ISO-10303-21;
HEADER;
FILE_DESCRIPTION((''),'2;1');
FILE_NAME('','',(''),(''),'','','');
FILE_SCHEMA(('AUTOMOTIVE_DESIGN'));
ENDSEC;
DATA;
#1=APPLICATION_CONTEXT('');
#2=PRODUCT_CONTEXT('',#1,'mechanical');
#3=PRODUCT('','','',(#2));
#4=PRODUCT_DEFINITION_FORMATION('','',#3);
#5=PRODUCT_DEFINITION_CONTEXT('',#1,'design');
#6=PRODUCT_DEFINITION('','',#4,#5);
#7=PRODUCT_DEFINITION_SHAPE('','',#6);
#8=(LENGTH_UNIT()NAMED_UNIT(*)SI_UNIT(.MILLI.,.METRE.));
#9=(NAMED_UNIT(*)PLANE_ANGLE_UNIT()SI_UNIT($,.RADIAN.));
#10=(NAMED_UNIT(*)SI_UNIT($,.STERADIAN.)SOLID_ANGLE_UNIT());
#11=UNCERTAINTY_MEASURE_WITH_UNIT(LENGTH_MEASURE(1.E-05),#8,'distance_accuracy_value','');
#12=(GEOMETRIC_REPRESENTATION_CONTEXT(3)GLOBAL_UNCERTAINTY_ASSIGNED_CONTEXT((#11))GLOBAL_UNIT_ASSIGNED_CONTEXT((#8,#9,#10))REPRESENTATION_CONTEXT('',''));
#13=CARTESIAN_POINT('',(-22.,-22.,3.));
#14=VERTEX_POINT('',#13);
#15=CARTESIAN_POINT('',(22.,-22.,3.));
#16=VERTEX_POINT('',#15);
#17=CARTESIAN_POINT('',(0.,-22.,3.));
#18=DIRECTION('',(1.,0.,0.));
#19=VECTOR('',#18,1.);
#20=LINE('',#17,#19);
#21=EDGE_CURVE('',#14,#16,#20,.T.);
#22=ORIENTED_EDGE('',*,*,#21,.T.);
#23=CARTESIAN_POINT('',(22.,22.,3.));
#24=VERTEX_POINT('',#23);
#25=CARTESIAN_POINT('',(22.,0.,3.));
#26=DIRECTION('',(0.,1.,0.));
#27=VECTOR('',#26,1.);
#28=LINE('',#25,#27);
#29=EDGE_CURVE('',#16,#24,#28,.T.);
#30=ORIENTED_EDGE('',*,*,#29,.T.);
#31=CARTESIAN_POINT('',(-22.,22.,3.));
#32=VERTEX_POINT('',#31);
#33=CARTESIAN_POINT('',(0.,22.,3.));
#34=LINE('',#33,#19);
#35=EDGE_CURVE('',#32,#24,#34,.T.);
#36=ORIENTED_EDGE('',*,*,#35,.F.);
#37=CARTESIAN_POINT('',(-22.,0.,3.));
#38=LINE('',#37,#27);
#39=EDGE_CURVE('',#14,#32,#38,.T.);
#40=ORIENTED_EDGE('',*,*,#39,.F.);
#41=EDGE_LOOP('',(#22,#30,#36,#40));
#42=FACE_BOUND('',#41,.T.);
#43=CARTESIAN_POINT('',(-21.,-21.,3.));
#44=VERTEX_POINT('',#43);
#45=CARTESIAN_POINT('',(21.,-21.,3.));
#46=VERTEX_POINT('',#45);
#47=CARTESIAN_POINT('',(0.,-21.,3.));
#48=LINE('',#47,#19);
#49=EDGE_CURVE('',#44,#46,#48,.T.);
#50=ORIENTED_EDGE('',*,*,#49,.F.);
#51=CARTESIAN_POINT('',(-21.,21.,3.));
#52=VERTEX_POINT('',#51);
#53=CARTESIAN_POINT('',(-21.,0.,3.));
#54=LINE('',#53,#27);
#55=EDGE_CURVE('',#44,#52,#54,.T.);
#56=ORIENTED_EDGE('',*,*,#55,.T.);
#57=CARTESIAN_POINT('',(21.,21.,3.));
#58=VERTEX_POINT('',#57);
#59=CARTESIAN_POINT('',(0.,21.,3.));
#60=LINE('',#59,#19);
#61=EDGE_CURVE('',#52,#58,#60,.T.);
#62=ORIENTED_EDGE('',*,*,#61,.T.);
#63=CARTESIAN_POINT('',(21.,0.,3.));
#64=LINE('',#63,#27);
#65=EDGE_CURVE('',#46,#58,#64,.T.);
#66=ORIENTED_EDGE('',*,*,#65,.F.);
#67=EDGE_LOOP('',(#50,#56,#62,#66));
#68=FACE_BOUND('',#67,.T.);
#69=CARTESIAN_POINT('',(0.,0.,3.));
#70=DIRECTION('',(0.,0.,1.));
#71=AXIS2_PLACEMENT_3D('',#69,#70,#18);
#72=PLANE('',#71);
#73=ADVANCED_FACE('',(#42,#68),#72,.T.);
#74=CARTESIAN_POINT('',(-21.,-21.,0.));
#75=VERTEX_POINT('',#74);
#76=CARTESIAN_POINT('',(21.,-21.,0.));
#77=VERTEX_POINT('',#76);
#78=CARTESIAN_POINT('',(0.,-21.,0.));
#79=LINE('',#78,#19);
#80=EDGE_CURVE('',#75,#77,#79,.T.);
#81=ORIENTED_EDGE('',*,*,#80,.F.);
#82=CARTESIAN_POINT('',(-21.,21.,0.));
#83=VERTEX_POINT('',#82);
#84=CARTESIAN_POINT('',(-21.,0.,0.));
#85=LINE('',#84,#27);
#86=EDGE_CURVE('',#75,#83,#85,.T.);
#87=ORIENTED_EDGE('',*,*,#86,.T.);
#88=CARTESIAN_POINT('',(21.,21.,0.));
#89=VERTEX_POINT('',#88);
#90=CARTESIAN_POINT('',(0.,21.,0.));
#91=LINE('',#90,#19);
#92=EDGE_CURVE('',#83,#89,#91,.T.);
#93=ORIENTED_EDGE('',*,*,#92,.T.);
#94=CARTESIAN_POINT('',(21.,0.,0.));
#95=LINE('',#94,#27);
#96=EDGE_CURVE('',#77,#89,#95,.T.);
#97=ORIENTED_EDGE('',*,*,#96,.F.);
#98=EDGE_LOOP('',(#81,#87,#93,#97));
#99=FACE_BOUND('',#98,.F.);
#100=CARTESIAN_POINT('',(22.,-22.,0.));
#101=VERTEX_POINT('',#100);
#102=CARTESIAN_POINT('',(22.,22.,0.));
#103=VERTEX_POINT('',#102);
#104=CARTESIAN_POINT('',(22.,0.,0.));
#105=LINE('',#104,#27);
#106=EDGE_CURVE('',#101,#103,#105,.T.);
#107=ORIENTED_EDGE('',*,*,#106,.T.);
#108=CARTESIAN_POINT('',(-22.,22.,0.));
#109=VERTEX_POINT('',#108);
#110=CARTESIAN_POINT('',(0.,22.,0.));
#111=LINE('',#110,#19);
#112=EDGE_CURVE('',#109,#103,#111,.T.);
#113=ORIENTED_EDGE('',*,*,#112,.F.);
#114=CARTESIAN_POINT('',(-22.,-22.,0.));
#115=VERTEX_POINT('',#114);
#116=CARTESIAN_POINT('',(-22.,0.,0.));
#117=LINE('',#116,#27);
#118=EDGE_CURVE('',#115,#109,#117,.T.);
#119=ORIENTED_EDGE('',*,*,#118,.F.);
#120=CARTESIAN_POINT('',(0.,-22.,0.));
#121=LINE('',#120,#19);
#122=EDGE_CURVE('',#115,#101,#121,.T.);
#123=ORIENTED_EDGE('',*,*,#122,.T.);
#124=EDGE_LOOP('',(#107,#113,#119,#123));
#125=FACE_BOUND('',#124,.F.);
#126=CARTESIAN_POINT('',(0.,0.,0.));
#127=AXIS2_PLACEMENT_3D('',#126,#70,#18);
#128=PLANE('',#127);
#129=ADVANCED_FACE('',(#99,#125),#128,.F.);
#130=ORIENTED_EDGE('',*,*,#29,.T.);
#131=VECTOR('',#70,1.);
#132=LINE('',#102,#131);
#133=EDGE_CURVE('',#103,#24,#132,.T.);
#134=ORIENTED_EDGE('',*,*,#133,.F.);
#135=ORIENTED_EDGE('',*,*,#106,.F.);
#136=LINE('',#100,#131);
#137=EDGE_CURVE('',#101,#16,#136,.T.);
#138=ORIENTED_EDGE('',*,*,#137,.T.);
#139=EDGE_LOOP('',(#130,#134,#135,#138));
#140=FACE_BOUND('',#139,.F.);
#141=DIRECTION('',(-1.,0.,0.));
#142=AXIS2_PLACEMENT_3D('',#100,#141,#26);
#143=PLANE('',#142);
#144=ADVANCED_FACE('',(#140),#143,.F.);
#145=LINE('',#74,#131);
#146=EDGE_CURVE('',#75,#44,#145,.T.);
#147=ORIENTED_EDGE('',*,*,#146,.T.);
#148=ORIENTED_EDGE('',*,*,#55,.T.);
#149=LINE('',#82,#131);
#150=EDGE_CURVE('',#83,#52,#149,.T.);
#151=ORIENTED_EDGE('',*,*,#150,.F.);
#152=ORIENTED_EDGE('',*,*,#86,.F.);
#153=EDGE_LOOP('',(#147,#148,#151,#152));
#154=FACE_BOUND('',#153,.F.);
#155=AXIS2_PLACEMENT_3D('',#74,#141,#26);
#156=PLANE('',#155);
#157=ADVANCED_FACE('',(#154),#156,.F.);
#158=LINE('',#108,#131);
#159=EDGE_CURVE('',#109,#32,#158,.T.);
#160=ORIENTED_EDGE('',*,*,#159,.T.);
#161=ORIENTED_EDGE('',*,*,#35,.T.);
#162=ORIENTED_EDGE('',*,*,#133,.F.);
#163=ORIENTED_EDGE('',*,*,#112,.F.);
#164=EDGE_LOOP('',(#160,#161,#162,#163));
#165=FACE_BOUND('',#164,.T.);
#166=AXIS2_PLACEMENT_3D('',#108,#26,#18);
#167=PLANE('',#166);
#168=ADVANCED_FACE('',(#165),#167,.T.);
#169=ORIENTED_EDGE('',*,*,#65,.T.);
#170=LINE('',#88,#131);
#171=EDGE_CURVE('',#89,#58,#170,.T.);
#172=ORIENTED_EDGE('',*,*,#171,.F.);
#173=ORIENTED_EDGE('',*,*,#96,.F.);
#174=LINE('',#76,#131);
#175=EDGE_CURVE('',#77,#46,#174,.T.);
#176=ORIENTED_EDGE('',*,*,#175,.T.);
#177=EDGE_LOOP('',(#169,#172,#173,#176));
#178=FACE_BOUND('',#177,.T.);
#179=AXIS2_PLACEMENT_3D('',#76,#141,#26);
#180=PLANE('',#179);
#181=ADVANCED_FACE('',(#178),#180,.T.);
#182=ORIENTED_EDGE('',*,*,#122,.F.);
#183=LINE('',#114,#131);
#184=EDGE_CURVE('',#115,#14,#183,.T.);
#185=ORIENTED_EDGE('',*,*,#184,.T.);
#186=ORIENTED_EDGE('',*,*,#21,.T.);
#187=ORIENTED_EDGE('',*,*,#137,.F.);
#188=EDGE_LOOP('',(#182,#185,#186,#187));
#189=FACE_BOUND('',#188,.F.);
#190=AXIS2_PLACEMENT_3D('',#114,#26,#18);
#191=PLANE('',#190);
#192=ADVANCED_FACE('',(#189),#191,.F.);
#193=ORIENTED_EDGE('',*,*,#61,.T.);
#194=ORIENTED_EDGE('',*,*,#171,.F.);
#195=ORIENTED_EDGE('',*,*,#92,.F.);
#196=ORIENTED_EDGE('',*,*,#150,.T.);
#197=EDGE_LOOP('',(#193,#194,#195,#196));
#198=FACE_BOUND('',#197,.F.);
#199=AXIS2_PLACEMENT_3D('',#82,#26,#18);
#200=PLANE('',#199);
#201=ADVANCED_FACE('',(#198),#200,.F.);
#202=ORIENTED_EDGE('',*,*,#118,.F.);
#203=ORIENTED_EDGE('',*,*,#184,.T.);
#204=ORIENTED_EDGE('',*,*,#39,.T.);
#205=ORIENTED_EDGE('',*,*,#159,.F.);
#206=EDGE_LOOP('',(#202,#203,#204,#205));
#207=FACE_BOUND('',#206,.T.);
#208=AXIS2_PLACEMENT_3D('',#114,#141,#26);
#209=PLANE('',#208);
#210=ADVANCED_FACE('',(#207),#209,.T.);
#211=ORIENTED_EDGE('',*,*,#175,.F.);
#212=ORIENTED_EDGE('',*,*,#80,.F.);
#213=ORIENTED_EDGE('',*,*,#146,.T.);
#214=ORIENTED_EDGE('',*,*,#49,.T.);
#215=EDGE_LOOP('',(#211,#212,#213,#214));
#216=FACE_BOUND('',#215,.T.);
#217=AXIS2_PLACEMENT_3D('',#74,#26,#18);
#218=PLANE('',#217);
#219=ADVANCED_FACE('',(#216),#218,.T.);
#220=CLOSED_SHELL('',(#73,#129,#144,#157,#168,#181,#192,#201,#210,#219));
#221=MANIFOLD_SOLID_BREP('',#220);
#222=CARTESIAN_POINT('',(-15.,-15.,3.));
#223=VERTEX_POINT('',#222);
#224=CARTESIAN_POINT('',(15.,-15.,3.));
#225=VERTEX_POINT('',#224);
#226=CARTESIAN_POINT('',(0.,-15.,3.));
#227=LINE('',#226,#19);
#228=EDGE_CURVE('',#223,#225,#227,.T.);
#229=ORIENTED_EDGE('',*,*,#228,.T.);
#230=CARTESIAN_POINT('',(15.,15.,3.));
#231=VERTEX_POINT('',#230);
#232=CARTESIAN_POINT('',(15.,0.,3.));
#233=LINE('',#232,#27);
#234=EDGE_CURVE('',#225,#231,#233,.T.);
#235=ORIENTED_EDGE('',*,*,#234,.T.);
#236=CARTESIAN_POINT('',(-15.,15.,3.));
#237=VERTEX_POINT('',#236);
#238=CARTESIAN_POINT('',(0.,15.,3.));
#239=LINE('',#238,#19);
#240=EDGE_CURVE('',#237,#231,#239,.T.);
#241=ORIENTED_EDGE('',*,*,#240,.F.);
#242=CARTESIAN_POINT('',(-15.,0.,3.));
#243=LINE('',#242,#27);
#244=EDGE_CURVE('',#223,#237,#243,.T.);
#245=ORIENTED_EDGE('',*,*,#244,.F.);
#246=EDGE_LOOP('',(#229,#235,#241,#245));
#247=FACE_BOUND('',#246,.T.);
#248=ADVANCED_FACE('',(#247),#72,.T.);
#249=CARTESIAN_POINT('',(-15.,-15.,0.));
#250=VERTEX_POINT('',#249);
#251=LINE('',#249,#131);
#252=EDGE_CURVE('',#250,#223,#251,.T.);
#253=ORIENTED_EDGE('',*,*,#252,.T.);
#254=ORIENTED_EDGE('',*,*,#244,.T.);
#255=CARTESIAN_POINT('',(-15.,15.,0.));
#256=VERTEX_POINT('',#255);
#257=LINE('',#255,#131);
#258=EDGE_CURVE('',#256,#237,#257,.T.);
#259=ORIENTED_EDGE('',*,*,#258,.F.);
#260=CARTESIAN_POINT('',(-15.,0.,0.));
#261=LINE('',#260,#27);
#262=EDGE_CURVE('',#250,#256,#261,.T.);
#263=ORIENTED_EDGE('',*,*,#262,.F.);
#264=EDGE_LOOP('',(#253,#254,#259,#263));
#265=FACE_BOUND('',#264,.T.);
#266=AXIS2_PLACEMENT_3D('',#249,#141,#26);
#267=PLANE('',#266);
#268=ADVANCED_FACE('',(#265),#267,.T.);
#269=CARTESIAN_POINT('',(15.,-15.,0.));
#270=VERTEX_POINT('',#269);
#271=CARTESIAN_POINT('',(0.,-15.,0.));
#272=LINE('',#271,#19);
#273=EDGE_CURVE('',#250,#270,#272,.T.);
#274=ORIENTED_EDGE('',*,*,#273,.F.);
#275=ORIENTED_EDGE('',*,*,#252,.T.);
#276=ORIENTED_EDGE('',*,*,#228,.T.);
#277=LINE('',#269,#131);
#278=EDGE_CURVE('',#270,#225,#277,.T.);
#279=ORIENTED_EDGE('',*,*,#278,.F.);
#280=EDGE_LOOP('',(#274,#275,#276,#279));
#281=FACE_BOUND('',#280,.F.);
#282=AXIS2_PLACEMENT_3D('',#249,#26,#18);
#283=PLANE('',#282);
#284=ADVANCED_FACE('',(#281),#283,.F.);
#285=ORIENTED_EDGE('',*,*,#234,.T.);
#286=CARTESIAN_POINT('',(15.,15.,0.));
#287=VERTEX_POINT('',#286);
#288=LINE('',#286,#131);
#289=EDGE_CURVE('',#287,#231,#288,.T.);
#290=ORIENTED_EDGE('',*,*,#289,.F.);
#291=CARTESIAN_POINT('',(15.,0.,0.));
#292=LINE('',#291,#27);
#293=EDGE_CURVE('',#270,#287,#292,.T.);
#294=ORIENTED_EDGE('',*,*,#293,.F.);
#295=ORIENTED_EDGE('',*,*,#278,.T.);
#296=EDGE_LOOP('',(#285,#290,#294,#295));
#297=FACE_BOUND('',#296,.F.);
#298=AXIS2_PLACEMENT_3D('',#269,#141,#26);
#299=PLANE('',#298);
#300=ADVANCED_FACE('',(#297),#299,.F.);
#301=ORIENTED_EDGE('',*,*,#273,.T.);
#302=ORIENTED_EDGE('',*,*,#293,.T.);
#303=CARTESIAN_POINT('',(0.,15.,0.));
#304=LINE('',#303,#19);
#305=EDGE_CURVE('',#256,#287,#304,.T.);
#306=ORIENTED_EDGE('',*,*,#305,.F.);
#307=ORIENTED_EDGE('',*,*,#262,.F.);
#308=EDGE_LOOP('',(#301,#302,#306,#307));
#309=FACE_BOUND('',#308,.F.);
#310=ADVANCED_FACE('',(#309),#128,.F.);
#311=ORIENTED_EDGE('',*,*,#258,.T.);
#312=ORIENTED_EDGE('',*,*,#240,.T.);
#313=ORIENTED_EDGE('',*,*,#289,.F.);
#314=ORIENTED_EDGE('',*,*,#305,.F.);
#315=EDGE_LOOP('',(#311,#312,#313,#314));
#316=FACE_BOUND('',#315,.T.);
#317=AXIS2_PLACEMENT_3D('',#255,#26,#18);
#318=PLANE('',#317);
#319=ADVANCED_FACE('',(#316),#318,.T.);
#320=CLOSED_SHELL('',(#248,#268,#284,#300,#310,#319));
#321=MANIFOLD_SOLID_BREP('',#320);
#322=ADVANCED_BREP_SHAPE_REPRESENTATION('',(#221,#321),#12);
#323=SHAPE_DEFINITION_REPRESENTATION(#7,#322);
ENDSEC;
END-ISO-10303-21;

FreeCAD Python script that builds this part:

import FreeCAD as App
import Part
import Sketcher

V = App.Vector
Q = App.Units.Quantity

doc = App.newDocument("Part")
body = doc.addObject("PartDesign::Body", "Body")
body.AllowCompound = True

# Sketch on XY plane
sketch1 = doc.addObject("Sketcher::SketchObject", "Sketch")
body.addObject(sketch1)
sketch1.AttachmentSupport = (doc.XY_Plane, [""])
sketch1.MapMode = "FlatFace"
sketch1.addGeometry(Part.LineSegment(V(-22, 22, 0), V(-22, -22, 0)), False)
sketch1.addGeometry(Part.LineSegment(V(-22, -22, 0), V(22, -22, 0)), False)
sketch1.addGeometry(Part.LineSegment(V(22, -22, 0), V(22, 22, 0)), False)
sketch1.addGeometry(Part.LineSegment(V(22, 22, 0), V(-22, 22, 0)), False)
sketch1.addGeometry(Part.LineSegment(V(21, -21, 0), V(-21, -21, 0)), False)
sketch1.addGeometry(Part.LineSegment(V(-21, -21, 0), V(-21, 21, 0)), False)
sketch1.addGeometry(Part.LineSegment(V(-21, 21, 0), V(21, 21, 0)), False)
sketch1.addGeometry(Part.LineSegment(V(21, 21, 0), V(21, -21, 0)), False)
sketch1.addGeometry(Part.LineSegment(V(-15, 15, 0), V(-15, -15, 0)), False)
sketch1.addGeometry(Part.LineSegment(V(-15, -15, 0), V(15, -15, 0)), False)
sketch1.addGeometry(Part.LineSegment(V(15, -15, 0), V(15, 15, 0)), False)
sketch1.addGeometry(Part.LineSegment(V(15, 15, 0), V(-15, 15, 0)), False)
sketch1.addConstraint(Sketcher.Constraint("Coincident", 0, 2, 1, 1))
sketch1.addConstraint(Sketcher.Constraint("Coincident", 1, 2, 2, 1))
sketch1.addConstraint(Sketcher.Constraint("Coincident", 2, 2, 3, 1))
sketch1.addConstraint(Sketcher.Constraint("Coincident", 3, 2, 0, 1))
sketch1.addConstraint(Sketcher.Constraint("Coincident", 4, 2, 5, 1))
sketch1.addConstraint(Sketcher.Constraint("Coincident", 5, 2, 6, 1))
sketch1.addConstraint(Sketcher.Constraint("Coincident", 6, 2, 7, 1))
sketch1.addConstraint(Sketcher.Constraint("Coincident", 7, 2, 4, 1))
sketch1.addConstraint(Sketcher.Constraint("Coincident", 8, 2, 9, 1))
sketch1.addConstraint(Sketcher.Constraint("Coincident", 9, 2, 10, 1))
sketch1.addConstraint(Sketcher.Constraint("Coincident", 10, 2, 11, 1))
sketch1.addConstraint(Sketcher.Constraint("Coincident", 11, 2, 8, 1))
sketch1.addConstraint(Sketcher.Constraint("Vertical", 0))
sketch1.addConstraint(Sketcher.Constraint("Horizontal", 1))
sketch1.addConstraint(Sketcher.Constraint("Vertical", 2))
sketch1.addConstraint(Sketcher.Constraint("Horizontal", 3))
sketch1.addConstraint(Sketcher.Constraint("Horizontal", 4))
sketch1.addConstraint(Sketcher.Constraint("Vertical", 5))
sketch1.addConstraint(Sketcher.Constraint("Horizontal", 6))
sketch1.addConstraint(Sketcher.Constraint("Vertical", 7))
sketch1.addConstraint(Sketcher.Constraint("Vertical", 8))
sketch1.addConstraint(Sketcher.Constraint("Horizontal", 9))
sketch1.addConstraint(Sketcher.Constraint("Vertical", 10))
sketch1.addConstraint(Sketcher.Constraint("Horizontal", 11))
sketch1.addConstraint(Sketcher.Constraint("Symmetric", 0, 2, 2, 2, -1, 1))
sketch1.addConstraint(Sketcher.Constraint("Symmetric", 4, 2, 6, 2, -1, 1))
sketch1.addConstraint(Sketcher.Constraint("Symmetric", 8, 2, 10, 2, -1, 1))
sketch1.addConstraint(Sketcher.Constraint("Equal", 3, 0))
sketch1.addConstraint(Sketcher.Constraint("Equal", 6, 5))
sketch1.addConstraint(Sketcher.Constraint("Equal", 11, 8))
sketch1.addConstraint(Sketcher.Constraint("DistanceX", 1, 1, 1, 2, Q("44 mm")))
sketch1.addConstraint(Sketcher.Constraint("DistanceX", 4, 2, 4, 1, Q("42 mm")))
sketch1.addConstraint(Sketcher.Constraint("DistanceX", 9, 1, 9, 2, Q("30 mm")))
pad1 = doc.addObject("PartDesign::Pad", "Pad")
body.addObject(pad1)
pad1.Profile = sketch1
pad1.Length = 3

# Sketch on XY plane
sketch2 = doc.addObject("Sketcher::SketchObject", "Sketch001")
body.addObject(sketch2)
sketch2.AttachmentSupport = (doc.XY_Plane, [""])
sketch2.MapMode = "FlatFace"
sketch2.addGeometry(Part.LineSegment(V(-22, 22, 0), V(-22, -22, 0)), False)
sketch2.addGeometry(Part.LineSegment(V(-22, -22, 0), V(22, -22, 0)), False)
sketch2.addGeometry(Part.LineSegment(V(22, -22, 0), V(22, 22, 0)), False)
sketch2.addGeometry(Part.LineSegment(V(22, 22, 0), V(-22, 22, 0)), False)
sketch2.addGeometry(Part.LineSegment(V(21, -21, 0), V(-21, -21, 0)), False)
sketch2.addGeometry(Part.LineSegment(V(-21, -21, 0), V(-21, 21, 0)), False)
sketch2.addGeometry(Part.LineSegment(V(-21, 21, 0), V(21, 21, 0)), False)
sketch2.addGeometry(Part.LineSegment(V(21, 21, 0), V(21, -21, 0)), False)
sketch2.addConstraint(Sketcher.Constraint("Coincident", 0, 2, 1, 1))
sketch2.addConstraint(Sketcher.Constraint("Coincident", 1, 2, 2, 1))
sketch2.addConstraint(Sketcher.Constraint("Coincident", 2, 2, 3, 1))
sketch2.addConstraint(Sketcher.Constraint("Coincident", 3, 2, 0, 1))
sketch2.addConstraint(Sketcher.Constraint("Coincident", 4, 2, 5, 1))
sketch2.addConstraint(Sketcher.Constraint("Coincident", 5, 2, 6, 1))
sketch2.addConstraint(Sketcher.Constraint("Coincident", 6, 2, 7, 1))
sketch2.addConstraint(Sketcher.Constraint("Coincident", 7, 2, 4, 1))
sketch2.addConstraint(Sketcher.Constraint("Vertical", 0))
sketch2.addConstraint(Sketcher.Constraint("Horizontal", 1))
sketch2.addConstraint(Sketcher.Constraint("Vertical", 2))
sketch2.addConstraint(Sketcher.Constraint("Horizontal", 3))
sketch2.addConstraint(Sketcher.Constraint("Horizontal", 4))
sketch2.addConstraint(Sketcher.Constraint("Vertical", 5))
sketch2.addConstraint(Sketcher.Constraint("Horizontal", 6))
sketch2.addConstraint(Sketcher.Constraint("Vertical", 7))
sketch2.addConstraint(Sketcher.Constraint("Symmetric", 0, 2, 2, 2, -1, 1))
sketch2.addConstraint(Sketcher.Constraint("Symmetric", 4, 2, 6, 2, -1, 1))
sketch2.addConstraint(Sketcher.Constraint("Equal", 3, 0))
sketch2.addConstraint(Sketcher.Constraint("Equal", 6, 5))
sketch2.addConstraint(Sketcher.Constraint("DistanceX", 1, 1, 1, 2, Q("44 mm")))
sketch2.addConstraint(Sketcher.Constraint("DistanceX", 4, 2, 4, 1, Q("42 mm")))
pad2 = doc.addObject("PartDesign::Pad", "Pad001")
body.addObject(pad2)
pad2.Profile = sketch2
pad2.Length = 3

doc.recompute()
